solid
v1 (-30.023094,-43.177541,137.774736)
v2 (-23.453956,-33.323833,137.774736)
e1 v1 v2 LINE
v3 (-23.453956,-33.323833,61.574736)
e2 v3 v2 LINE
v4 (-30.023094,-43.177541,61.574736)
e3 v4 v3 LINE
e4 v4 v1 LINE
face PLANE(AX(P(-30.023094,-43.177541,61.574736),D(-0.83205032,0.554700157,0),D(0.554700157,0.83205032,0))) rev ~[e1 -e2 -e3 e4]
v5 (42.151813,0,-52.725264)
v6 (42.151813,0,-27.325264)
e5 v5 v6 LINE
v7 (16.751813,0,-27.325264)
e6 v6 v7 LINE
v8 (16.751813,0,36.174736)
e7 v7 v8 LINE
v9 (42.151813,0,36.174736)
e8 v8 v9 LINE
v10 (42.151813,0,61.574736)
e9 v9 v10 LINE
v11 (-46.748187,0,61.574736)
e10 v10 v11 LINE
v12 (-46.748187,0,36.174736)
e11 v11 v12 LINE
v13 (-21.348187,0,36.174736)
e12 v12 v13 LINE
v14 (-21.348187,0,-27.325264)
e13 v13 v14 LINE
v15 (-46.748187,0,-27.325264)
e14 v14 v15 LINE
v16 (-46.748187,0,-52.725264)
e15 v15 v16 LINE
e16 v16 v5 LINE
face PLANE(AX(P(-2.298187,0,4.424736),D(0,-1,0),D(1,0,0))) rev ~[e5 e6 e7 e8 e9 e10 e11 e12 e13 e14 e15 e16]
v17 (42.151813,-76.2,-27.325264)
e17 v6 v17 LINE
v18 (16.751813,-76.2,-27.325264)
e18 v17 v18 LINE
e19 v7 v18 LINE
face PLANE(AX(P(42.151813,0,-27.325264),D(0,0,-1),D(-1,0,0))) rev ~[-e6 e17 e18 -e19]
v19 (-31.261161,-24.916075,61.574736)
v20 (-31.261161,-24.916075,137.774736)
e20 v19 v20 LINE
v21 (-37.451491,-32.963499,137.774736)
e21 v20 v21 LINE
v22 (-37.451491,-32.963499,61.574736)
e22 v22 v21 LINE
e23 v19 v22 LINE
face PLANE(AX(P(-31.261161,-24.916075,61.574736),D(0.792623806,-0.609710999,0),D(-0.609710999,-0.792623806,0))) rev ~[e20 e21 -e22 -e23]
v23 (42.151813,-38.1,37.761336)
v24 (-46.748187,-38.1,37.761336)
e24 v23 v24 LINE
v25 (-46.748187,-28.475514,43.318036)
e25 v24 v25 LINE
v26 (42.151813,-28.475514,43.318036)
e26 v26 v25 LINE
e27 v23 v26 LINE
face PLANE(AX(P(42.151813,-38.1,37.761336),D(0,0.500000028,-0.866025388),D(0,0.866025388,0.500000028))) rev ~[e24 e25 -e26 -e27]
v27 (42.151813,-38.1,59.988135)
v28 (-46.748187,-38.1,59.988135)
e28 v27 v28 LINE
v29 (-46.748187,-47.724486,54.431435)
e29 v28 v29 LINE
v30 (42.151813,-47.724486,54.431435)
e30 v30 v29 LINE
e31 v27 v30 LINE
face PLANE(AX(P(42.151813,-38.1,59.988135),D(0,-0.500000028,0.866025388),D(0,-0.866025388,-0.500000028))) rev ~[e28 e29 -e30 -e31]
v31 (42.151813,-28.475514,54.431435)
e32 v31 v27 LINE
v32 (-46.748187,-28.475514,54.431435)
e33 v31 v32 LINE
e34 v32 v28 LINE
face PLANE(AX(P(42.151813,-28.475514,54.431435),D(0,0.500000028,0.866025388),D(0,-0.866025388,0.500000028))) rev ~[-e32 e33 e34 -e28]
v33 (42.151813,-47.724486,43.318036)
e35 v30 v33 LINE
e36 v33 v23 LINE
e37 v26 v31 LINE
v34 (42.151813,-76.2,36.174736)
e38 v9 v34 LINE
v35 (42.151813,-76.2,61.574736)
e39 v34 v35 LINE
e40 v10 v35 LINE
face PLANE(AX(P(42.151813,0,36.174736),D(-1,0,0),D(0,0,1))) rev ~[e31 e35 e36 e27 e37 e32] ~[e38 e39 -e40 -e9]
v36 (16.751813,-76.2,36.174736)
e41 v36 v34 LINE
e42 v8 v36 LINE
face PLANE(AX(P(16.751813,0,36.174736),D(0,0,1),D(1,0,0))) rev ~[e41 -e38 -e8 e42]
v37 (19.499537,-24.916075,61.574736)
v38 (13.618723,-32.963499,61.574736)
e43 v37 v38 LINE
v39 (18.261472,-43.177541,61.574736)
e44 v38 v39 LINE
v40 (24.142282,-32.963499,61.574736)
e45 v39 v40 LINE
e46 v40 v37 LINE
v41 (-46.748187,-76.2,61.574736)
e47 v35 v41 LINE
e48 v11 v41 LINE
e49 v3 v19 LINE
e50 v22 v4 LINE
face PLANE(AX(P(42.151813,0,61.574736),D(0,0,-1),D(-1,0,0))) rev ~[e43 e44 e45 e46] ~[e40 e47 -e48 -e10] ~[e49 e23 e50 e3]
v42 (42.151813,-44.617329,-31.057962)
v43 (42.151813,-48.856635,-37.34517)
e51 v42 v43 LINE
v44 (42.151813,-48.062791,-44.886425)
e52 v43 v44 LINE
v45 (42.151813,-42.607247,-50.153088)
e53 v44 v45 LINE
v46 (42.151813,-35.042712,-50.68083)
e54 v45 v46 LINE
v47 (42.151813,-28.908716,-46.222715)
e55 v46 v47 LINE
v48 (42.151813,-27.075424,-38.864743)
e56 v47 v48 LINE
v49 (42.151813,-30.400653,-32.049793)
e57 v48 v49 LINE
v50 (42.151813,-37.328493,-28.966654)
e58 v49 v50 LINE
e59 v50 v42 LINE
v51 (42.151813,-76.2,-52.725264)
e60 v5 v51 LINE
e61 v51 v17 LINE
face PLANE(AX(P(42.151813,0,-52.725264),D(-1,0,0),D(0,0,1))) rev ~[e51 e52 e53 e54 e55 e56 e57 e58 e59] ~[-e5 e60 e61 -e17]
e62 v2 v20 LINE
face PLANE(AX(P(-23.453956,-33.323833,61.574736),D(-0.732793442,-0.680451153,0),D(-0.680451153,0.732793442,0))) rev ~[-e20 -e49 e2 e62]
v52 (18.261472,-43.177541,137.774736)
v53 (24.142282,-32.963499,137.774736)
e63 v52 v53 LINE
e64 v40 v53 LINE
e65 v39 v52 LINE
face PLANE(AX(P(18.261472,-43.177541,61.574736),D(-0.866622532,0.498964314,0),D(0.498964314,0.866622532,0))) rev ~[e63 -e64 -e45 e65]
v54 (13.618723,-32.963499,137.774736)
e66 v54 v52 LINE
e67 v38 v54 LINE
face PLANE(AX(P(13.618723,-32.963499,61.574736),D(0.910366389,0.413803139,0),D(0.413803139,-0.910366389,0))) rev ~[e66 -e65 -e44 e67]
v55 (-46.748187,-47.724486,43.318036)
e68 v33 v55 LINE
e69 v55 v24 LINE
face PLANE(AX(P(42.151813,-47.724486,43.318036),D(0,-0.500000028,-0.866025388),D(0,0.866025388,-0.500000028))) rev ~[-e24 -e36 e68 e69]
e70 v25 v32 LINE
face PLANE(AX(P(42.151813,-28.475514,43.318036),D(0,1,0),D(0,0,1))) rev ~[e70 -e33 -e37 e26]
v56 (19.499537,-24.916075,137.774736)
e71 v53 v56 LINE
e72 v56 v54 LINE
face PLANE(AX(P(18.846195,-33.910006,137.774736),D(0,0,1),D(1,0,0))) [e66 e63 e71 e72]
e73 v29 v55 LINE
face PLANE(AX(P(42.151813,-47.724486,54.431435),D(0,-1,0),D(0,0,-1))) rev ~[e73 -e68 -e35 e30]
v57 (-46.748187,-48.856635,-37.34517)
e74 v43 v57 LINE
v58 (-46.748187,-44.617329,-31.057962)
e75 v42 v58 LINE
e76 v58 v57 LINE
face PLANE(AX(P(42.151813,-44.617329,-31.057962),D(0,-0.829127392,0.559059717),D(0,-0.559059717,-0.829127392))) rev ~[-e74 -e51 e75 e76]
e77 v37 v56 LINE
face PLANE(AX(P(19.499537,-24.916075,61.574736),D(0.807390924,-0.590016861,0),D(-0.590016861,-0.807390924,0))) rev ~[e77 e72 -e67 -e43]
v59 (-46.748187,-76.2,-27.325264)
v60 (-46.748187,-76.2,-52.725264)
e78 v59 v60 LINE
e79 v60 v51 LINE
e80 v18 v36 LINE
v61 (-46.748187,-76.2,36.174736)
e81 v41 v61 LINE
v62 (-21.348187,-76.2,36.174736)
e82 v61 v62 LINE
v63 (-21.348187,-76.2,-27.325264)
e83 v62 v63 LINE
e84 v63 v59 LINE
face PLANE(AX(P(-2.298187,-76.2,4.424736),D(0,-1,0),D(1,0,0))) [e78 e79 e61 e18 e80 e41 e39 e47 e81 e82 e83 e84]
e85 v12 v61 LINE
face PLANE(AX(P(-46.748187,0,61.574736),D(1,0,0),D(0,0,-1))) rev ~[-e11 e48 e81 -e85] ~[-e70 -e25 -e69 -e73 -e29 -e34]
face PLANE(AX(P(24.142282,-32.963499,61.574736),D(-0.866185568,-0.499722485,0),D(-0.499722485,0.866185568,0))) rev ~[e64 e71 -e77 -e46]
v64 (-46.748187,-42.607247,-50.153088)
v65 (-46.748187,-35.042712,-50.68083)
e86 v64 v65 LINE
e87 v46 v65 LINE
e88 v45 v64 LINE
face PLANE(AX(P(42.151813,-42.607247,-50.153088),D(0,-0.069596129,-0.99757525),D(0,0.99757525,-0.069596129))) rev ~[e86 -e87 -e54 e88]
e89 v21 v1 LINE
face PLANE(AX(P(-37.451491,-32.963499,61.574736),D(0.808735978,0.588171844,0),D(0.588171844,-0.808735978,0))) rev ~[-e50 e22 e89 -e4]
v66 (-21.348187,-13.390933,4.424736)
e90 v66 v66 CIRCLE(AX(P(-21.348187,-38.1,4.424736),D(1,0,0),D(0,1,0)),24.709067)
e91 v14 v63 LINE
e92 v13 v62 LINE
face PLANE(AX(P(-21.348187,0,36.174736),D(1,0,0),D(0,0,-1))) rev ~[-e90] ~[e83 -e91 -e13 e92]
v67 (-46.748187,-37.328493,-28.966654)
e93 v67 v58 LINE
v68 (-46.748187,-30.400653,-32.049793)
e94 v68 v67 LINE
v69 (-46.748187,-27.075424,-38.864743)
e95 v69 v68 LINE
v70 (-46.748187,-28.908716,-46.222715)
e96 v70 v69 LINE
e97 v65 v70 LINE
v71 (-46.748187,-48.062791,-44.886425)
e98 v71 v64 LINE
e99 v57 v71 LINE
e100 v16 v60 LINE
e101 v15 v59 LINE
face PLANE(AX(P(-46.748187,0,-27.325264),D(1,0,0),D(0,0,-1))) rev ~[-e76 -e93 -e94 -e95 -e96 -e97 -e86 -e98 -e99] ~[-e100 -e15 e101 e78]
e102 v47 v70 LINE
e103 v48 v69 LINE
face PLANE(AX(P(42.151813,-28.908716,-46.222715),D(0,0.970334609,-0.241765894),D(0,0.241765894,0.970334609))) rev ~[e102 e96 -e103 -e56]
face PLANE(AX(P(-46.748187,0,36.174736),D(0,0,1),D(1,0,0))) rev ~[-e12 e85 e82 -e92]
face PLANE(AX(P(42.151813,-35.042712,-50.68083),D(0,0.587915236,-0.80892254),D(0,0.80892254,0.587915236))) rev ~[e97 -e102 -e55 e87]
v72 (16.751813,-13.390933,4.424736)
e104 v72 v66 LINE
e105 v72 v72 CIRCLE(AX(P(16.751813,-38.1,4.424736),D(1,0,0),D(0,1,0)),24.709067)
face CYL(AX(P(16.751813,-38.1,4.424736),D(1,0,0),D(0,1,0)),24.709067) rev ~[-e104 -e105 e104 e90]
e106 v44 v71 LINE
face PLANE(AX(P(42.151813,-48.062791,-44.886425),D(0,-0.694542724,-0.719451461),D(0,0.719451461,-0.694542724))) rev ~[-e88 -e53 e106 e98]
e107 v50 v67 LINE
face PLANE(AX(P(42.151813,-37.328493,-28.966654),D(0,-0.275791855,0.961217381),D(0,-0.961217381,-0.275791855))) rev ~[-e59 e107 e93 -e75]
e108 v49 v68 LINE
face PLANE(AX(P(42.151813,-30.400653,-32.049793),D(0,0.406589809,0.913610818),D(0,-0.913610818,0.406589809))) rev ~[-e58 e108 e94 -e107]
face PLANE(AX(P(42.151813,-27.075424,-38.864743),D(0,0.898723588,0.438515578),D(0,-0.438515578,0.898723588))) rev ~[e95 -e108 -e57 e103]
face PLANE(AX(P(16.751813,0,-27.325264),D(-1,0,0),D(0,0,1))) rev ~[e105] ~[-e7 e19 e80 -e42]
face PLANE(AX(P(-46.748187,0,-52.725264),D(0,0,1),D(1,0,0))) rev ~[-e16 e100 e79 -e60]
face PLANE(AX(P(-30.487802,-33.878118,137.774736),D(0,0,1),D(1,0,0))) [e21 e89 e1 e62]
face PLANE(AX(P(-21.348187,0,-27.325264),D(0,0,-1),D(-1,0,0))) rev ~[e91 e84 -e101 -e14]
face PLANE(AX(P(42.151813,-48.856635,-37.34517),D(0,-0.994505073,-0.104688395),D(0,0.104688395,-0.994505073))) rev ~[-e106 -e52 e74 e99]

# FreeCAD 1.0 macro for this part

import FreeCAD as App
import Part
import Sketcher
Q = App.Units.Quantity

doc = App.newDocument("Part")
body = doc.addObject("PartDesign::Body", "Body")

# Sketch on XZ plane
sketch1 = body.newObject("Sketcher::SketchObject", "Sketch")
sketch1.AttachmentSupport = (doc.getObject("XZ_Plane"), [""])
sketch1.MapMode = "FlatFace"
sketch1.addGeometry([
    Part.LineSegment(App.Vector(-47, -27, 0), App.Vector(-47, -53, 0)),  # 0
    Part.LineSegment(App.Vector(-47, -53, 0), App.Vector(42, -53, 0)),  # 1
    Part.LineSegment(App.Vector(42, -53, 0), App.Vector(42, -27, 0)),  # 2
    Part.LineSegment(App.Vector(42, -27, 0), App.Vector(17, -27, 0)),  # 3
    Part.LineSegment(App.Vector(17, -27, 0), App.Vector(17, 36, 0)),  # 4
    Part.LineSegment(App.Vector(17, 36, 0), App.Vector(42, 36, 0)),  # 5
    Part.LineSegment(App.Vector(42, 36, 0), App.Vector(42, 62, 0)),  # 6
    Part.LineSegment(App.Vector(42, 62, 0), App.Vector(-47, 62, 0)),  # 7
    Part.LineSegment(App.Vector(-47, 62, 0), App.Vector(-47, 36, 0)),  # 8
    Part.LineSegment(App.Vector(-47, 36, 0), App.Vector(-21, 36, 0)),  # 9
    Part.LineSegment(App.Vector(-21, 36, 0), App.Vector(-21, -27, 0)),  # 10
    Part.LineSegment(App.Vector(-21, -27, 0), App.Vector(-47, -27, 0)),  # 11
], False)
sketch1.addConstraint([
    Sketcher.Constraint("Coincident", 0, 2, 1, 1),
    Sketcher.Constraint("Coincident", 1, 2, 2, 1),
    Sketcher.Constraint("Coincident", 2, 2, 3, 1),
    Sketcher.Constraint("Coincident", 3, 2, 4, 1),
    Sketcher.Constraint("Coincident", 4, 2, 5, 1),
    Sketcher.Constraint("Coincident", 5, 2, 6, 1),
    Sketcher.Constraint("Coincident", 6, 2, 7, 1),
    Sketcher.Constraint("Coincident", 7, 2, 8, 1),
    Sketcher.Constraint("Coincident", 8, 2, 9, 1),
    Sketcher.Constraint("Coincident", 9, 2, 10, 1),
    Sketcher.Constraint("Coincident", 10, 2, 11, 1),
    Sketcher.Constraint("Coincident", 11, 2, 0, 1),
    Sketcher.Constraint("Vertical", 0),
    Sketcher.Constraint("Horizontal", 1),
    Sketcher.Constraint("Vertical", 2),
    Sketcher.Constraint("Horizontal", 3),
    Sketcher.Constraint("Vertical", 4),
    Sketcher.Constraint("Horizontal", 5),
    Sketcher.Constraint("Vertical", 6),
    Sketcher.Constraint("Horizontal", 7),
    Sketcher.Constraint("Vertical", 8),
    Sketcher.Constraint("Horizontal", 9),
    Sketcher.Constraint("Vertical", 10),
    Sketcher.Constraint("Horizontal", 11),
    Sketcher.Constraint("Horizontal", 5, 2, 8, 2),
    Sketcher.Constraint("Horizontal", 3, 2, 10, 2),
    Sketcher.Constraint("Vertical", 2, 2, 5, 2),
    Sketcher.Constraint("Vertical", 0, 2, 7, 2),
    Sketcher.Constraint("Equal", 5, 9),
    Sketcher.Constraint("Equal", 11, 0),
    Sketcher.Constraint("Equal", 2, 6),
    Sketcher.Constraint("DistanceX", 3, 2, 3, 1, Q("1 in")),
    Sketcher.Constraint("DistanceX", 1, 1, 1, 2, Q("3.5 in")),
    Sketcher.Constraint("DistanceY", 4, 1, 4, 2, Q("2.5 in")),
    Sketcher.Constraint("DistanceX", 0, 2, -1, 1, 46.748187),
    Sketcher.Constraint("DistanceY", 0, 2, -1, 1, 52.725264),
])
pad1 = body.newObject("PartDesign::Pad", "Pad")
pad1.Profile = sketch1
pad1.Length = Q("3 in")

# Sketch on YZ plane
sketch2 = body.newObject("Sketcher::SketchObject", "Sketch001")
sketch2.AttachmentSupport = (doc.getObject("YZ_Plane"), [""])
sketch2.MapMode = "FlatFace"
sketch2.AttachmentOffset = App.Placement(App.Vector(0, 0, 16.751813), App.Rotation())
sketch2.addGeometry(Part.Circle(App.Vector(-38, 4, 0), App.Vector(0, 0, 1), 25), False)
sketch2.addConstraint([
    Sketcher.Constraint("DistanceX", 0, 3, -1, 1, Q("1.5 in")),
    Sketcher.Constraint("Diameter", 0, 49.418134),
    Sketcher.Constraint("DistanceY", -1, 1, 0, 3, 4.424736),
])
pocket1 = body.newObject("PartDesign::Pocket", "Pocket")
pocket1.Profile = sketch2
pocket1.Type = "ThroughAll"

# Sketch on YZ plane
sketch3 = body.newObject("Sketcher::SketchObject", "Sketch002")
sketch3.AttachmentSupport = (doc.getObject("YZ_Plane"), [""])
sketch3.MapMode = "FlatFace"
sketch3.AttachmentOffset = App.Placement(App.Vector(0, 0, 42.151813), App.Rotation())
sketch3.addGeometry([
    Part.LineSegment(App.Vector(-28, 43, 0), App.Vector(-28, 54, 0)),  # 0
    Part.LineSegment(App.Vector(-28, 54, 0), App.Vector(-38, 60, 0)),  # 1
    Part.LineSegment(App.Vector(-38, 60, 0), App.Vector(-48, 54, 0)),  # 2
    Part.LineSegment(App.Vector(-48, 54, 0), App.Vector(-48, 43, 0)),  # 3
    Part.LineSegment(App.Vector(-48, 43, 0), App.Vector(-38, 38, 0)),  # 4
    Part.LineSegment(App.Vector(-38, 38, 0), App.Vector(-28, 43, 0)),  # 5
], False)
sketch3.addConstraint([
    Sketcher.Constraint("Coincident", 0, 2, 1, 1),
    Sketcher.Constraint("Coincident", 1, 2, 2, 1),
    Sketcher.Constraint("Coincident", 2, 2, 3, 1),
    Sketcher.Constraint("Coincident", 3, 2, 4, 1),
    Sketcher.Constraint("Coincident", 4, 2, 5, 1),
    Sketcher.Constraint("Coincident", 5, 2, 0, 1),
    Sketcher.Constraint("Vertical", 0),
    Sketcher.Constraint("Vertical", 3),
    Sketcher.Constraint("Parallel", 1, 4),
    Sketcher.Constraint("Parallel", 2, 5),
    Sketcher.Constraint("Horizontal", 0, 2, 2, 2),
    Sketcher.Constraint("Horizontal", 3, 2, 5, 2),
    Sketcher.Constraint("Vertical", 1, 2, 4, 2),
    Sketcher.Constraint("Angle", 1, Q("149.999998 deg")),
    Sketcher.Constraint("DistanceX", 1, 2, -1, 1, Q("1.5 in")),
    Sketcher.Constraint("DistanceY", 0, 1, 0, 2, 11.113399),
    Sketcher.Constraint("Distance", 1, 11.113399),
    Sketcher.Constraint("DistanceY", -1, 1, 0, 2, 54.431435),
])
pocket2 = body.newObject("PartDesign::Pocket", "Pocket001")
pocket2.Profile = sketch3
pocket2.Type = "ThroughAll"

# Sketch on YZ plane
sketch4 = body.newObject("Sketcher::SketchObject", "Sketch003")
sketch4.AttachmentSupport = (doc.getObject("YZ_Plane"), [""])
sketch4.MapMode = "FlatFace"
sketch4.AttachmentOffset = App.Placement(App.Vector(0, 0, 42.151813), App.Rotation())
sketch4.addGeometry([
    Part.LineSegment(App.Vector(-45, -31, 0), App.Vector(-49, -37, 0)),  # 0
    Part.LineSegment(App.Vector(-49, -37, 0), App.Vector(-48, -45, 0)),  # 1
    Part.LineSegment(App.Vector(-48, -45, 0), App.Vector(-43, -50, 0)),  # 2
    Part.LineSegment(App.Vector(-43, -50, 0), App.Vector(-35, -51, 0)),  # 3
    Part.LineSegment(App.Vector(-35, -51, 0), App.Vector(-29, -46, 0)),  # 4
    Part.LineSegment(App.Vector(-29, -46, 0), App.Vector(-27, -39, 0)),  # 5
    Part.LineSegment(App.Vector(-27, -39, 0), App.Vector(-30, -32, 0)),  # 6
    Part.LineSegment(App.Vector(-30, -32, 0), App.Vector(-37, -29, 0)),  # 7
    Part.LineSegment(App.Vector(-37, -29, 0), App.Vector(-45, -31, 0)),  # 8
], False)
sketch4.addConstraint([
    Sketcher.Constraint("Coincident", 0, 2, 1, 1),
    Sketcher.Constraint("Coincident", 1, 2, 2, 1),
    Sketcher.Constraint("Coincident", 2, 2, 3, 1),
    Sketcher.Constraint("Coincident", 3, 2, 4, 1),
    Sketcher.Constraint("Coincident", 4, 2, 5, 1),
    Sketcher.Constraint("Coincident", 5, 2, 6, 1),
    Sketcher.Constraint("Coincident", 6, 2, 7, 1),
    Sketcher.Constraint("Coincident", 7, 2, 8, 1),
    Sketcher.Constraint("Coincident", 8, 2, 0, 1),
    Sketcher.Constraint("Equal", 0, 1),
    Sketcher.Constraint("Equal", 1, 2),
    Sketcher.Constraint("Equal", 2, 3),
    Sketcher.Constraint("Equal", 3, 4),
    Sketcher.Constraint("Equal", 4, 5),
    Sketcher.Constraint("Equal", 5, 6),
    Sketcher.Constraint("Equal", 6, 7),
    Sketcher.Constraint("Equal", 7, 8),
    Sketcher.Constraint("DistanceY", 1, 2, 0, 2, Q("0.2968998 in")),
    Sketcher.Constraint("Distance", 0, 7.582922),
    Sketcher.Constraint("DistanceY", 0, 2, -1, 1, 37.34517),
    Sketcher.Constraint("DistanceX", 1, 2, -1, 1, 48.062791),
    Sketcher.Constraint("DistanceY", 3, 2, -1, 1, 50.68083),
    Sketcher.Constraint("DistanceX", 8, 2, -1, 1, 44.617329),
    Sketcher.Constraint("DistanceX", 1, 2, 3, 2, 13.020079),
    Sketcher.Constraint("DistanceX", 2, 2, 4, 2, 13.698531),
    Sketcher.Constraint("DistanceX", 4, 2, 5, 2, 1.833292),
    Sketcher.Constraint("DistanceX", 6, 2, 5, 2, 3.325229),
])
pocket3 = body.newObject("PartDesign::Pocket", "Pocket002")
pocket3.Profile = sketch4
pocket3.Type = "ThroughAll"

# Sketch on XY plane
sketch5 = body.newObject("Sketcher::SketchObject", "Sketch004")
sketch5.AttachmentSupport = (doc.getObject("XY_Plane"), [""])
sketch5.MapMode = "FlatFace"
sketch5.AttachmentOffset = App.Placement(App.Vector(0, 0, 61.574736), App.Rotation())
sketch5.addGeometry([
    Part.LineSegment(App.Vector(-23, -33, 0), App.Vector(-31, -25, 0)),  # 0
    Part.LineSegment(App.Vector(-31, -25, 0), App.Vector(-37, -33, 0)),  # 1
    Part.LineSegment(App.Vector(-37, -33, 0), App.Vector(-30, -43, 0)),  # 2
    Part.LineSegment(App.Vector(-30, -43, 0), App.Vector(-23, -33, 0)),  # 3
    Part.LineSegment(App.Vector(24, -33, 0), App.Vector(19, -25, 0)),  # 4
    Part.LineSegment(App.Vector(19, -25, 0), App.Vector(14, -33, 0)),  # 5
    Part.LineSegment(App.Vector(14, -33, 0), App.Vector(18, -43, 0)),  # 6
    Part.LineSegment(App.Vector(18, -43, 0), App.Vector(24, -33, 0)),  # 7
], False)
sketch5.addConstraint([
    Sketcher.Constraint("Coincident", 0, 2, 1, 1),
    Sketcher.Constraint("Coincident", 1, 2, 2, 1),
    Sketcher.Constraint("Coincident", 2, 2, 3, 1),
    Sketcher.Constraint("Coincident", 3, 2, 0, 1),
    Sketcher.Constraint("Coincident", 4, 2, 5, 1),
    Sketcher.Constraint("Coincident", 5, 2, 6, 1),
    Sketcher.Constraint("Coincident", 6, 2, 7, 1),
    Sketcher.Constraint("Coincident", 7, 2, 4, 1),
    Sketcher.Constraint("Horizontal", 0, 2, 4, 2),
    Sketcher.Constraint("Horizontal", 1, 2, 5, 2),
    Sketcher.Constraint("Horizontal", 2, 2, 6, 2),
    Sketcher.Constraint("Horizontal", 5, 2, 7, 2),
    Sketcher.Constraint("DistanceY", 1, 2, -1, 1, 32.963499),
    Sketcher.Constraint("DistanceX", 0, 2, 4, 2, 50.760698),
    Sketcher.Constraint("Distance", 0, 11.473572),
    Sketcher.Constraint("DistanceX", 0, 2, -1, 1, 31.261161),
    Sketcher.Constraint("DistanceX", 1, 2, -1, 1, 37.451491),
    Sketcher.Constraint("DistanceY", 2, 2, -1, 1, 43.177541),
    Sketcher.Constraint("DistanceY", 3, 2, 0, 2, 8.407758),
    Sketcher.Constraint("DistanceX", 2, 2, 4, 2, 49.522631),
    Sketcher.Constraint("DistanceX", 3, 2, 5, 2, 37.072679),
    Sketcher.Constraint("DistanceX", 5, 2, 6, 2, 4.642749),
    Sketcher.Constraint("DistanceX", 5, 2, 7, 2, 10.523559),
    Sketcher.Constraint("Distance", 1, 10.152892),
])
pad2 = body.newObject("PartDesign::Pad", "Pad001")
pad2.Profile = sketch5
pad2.Length = Q("3 in")

doc.recompute()
